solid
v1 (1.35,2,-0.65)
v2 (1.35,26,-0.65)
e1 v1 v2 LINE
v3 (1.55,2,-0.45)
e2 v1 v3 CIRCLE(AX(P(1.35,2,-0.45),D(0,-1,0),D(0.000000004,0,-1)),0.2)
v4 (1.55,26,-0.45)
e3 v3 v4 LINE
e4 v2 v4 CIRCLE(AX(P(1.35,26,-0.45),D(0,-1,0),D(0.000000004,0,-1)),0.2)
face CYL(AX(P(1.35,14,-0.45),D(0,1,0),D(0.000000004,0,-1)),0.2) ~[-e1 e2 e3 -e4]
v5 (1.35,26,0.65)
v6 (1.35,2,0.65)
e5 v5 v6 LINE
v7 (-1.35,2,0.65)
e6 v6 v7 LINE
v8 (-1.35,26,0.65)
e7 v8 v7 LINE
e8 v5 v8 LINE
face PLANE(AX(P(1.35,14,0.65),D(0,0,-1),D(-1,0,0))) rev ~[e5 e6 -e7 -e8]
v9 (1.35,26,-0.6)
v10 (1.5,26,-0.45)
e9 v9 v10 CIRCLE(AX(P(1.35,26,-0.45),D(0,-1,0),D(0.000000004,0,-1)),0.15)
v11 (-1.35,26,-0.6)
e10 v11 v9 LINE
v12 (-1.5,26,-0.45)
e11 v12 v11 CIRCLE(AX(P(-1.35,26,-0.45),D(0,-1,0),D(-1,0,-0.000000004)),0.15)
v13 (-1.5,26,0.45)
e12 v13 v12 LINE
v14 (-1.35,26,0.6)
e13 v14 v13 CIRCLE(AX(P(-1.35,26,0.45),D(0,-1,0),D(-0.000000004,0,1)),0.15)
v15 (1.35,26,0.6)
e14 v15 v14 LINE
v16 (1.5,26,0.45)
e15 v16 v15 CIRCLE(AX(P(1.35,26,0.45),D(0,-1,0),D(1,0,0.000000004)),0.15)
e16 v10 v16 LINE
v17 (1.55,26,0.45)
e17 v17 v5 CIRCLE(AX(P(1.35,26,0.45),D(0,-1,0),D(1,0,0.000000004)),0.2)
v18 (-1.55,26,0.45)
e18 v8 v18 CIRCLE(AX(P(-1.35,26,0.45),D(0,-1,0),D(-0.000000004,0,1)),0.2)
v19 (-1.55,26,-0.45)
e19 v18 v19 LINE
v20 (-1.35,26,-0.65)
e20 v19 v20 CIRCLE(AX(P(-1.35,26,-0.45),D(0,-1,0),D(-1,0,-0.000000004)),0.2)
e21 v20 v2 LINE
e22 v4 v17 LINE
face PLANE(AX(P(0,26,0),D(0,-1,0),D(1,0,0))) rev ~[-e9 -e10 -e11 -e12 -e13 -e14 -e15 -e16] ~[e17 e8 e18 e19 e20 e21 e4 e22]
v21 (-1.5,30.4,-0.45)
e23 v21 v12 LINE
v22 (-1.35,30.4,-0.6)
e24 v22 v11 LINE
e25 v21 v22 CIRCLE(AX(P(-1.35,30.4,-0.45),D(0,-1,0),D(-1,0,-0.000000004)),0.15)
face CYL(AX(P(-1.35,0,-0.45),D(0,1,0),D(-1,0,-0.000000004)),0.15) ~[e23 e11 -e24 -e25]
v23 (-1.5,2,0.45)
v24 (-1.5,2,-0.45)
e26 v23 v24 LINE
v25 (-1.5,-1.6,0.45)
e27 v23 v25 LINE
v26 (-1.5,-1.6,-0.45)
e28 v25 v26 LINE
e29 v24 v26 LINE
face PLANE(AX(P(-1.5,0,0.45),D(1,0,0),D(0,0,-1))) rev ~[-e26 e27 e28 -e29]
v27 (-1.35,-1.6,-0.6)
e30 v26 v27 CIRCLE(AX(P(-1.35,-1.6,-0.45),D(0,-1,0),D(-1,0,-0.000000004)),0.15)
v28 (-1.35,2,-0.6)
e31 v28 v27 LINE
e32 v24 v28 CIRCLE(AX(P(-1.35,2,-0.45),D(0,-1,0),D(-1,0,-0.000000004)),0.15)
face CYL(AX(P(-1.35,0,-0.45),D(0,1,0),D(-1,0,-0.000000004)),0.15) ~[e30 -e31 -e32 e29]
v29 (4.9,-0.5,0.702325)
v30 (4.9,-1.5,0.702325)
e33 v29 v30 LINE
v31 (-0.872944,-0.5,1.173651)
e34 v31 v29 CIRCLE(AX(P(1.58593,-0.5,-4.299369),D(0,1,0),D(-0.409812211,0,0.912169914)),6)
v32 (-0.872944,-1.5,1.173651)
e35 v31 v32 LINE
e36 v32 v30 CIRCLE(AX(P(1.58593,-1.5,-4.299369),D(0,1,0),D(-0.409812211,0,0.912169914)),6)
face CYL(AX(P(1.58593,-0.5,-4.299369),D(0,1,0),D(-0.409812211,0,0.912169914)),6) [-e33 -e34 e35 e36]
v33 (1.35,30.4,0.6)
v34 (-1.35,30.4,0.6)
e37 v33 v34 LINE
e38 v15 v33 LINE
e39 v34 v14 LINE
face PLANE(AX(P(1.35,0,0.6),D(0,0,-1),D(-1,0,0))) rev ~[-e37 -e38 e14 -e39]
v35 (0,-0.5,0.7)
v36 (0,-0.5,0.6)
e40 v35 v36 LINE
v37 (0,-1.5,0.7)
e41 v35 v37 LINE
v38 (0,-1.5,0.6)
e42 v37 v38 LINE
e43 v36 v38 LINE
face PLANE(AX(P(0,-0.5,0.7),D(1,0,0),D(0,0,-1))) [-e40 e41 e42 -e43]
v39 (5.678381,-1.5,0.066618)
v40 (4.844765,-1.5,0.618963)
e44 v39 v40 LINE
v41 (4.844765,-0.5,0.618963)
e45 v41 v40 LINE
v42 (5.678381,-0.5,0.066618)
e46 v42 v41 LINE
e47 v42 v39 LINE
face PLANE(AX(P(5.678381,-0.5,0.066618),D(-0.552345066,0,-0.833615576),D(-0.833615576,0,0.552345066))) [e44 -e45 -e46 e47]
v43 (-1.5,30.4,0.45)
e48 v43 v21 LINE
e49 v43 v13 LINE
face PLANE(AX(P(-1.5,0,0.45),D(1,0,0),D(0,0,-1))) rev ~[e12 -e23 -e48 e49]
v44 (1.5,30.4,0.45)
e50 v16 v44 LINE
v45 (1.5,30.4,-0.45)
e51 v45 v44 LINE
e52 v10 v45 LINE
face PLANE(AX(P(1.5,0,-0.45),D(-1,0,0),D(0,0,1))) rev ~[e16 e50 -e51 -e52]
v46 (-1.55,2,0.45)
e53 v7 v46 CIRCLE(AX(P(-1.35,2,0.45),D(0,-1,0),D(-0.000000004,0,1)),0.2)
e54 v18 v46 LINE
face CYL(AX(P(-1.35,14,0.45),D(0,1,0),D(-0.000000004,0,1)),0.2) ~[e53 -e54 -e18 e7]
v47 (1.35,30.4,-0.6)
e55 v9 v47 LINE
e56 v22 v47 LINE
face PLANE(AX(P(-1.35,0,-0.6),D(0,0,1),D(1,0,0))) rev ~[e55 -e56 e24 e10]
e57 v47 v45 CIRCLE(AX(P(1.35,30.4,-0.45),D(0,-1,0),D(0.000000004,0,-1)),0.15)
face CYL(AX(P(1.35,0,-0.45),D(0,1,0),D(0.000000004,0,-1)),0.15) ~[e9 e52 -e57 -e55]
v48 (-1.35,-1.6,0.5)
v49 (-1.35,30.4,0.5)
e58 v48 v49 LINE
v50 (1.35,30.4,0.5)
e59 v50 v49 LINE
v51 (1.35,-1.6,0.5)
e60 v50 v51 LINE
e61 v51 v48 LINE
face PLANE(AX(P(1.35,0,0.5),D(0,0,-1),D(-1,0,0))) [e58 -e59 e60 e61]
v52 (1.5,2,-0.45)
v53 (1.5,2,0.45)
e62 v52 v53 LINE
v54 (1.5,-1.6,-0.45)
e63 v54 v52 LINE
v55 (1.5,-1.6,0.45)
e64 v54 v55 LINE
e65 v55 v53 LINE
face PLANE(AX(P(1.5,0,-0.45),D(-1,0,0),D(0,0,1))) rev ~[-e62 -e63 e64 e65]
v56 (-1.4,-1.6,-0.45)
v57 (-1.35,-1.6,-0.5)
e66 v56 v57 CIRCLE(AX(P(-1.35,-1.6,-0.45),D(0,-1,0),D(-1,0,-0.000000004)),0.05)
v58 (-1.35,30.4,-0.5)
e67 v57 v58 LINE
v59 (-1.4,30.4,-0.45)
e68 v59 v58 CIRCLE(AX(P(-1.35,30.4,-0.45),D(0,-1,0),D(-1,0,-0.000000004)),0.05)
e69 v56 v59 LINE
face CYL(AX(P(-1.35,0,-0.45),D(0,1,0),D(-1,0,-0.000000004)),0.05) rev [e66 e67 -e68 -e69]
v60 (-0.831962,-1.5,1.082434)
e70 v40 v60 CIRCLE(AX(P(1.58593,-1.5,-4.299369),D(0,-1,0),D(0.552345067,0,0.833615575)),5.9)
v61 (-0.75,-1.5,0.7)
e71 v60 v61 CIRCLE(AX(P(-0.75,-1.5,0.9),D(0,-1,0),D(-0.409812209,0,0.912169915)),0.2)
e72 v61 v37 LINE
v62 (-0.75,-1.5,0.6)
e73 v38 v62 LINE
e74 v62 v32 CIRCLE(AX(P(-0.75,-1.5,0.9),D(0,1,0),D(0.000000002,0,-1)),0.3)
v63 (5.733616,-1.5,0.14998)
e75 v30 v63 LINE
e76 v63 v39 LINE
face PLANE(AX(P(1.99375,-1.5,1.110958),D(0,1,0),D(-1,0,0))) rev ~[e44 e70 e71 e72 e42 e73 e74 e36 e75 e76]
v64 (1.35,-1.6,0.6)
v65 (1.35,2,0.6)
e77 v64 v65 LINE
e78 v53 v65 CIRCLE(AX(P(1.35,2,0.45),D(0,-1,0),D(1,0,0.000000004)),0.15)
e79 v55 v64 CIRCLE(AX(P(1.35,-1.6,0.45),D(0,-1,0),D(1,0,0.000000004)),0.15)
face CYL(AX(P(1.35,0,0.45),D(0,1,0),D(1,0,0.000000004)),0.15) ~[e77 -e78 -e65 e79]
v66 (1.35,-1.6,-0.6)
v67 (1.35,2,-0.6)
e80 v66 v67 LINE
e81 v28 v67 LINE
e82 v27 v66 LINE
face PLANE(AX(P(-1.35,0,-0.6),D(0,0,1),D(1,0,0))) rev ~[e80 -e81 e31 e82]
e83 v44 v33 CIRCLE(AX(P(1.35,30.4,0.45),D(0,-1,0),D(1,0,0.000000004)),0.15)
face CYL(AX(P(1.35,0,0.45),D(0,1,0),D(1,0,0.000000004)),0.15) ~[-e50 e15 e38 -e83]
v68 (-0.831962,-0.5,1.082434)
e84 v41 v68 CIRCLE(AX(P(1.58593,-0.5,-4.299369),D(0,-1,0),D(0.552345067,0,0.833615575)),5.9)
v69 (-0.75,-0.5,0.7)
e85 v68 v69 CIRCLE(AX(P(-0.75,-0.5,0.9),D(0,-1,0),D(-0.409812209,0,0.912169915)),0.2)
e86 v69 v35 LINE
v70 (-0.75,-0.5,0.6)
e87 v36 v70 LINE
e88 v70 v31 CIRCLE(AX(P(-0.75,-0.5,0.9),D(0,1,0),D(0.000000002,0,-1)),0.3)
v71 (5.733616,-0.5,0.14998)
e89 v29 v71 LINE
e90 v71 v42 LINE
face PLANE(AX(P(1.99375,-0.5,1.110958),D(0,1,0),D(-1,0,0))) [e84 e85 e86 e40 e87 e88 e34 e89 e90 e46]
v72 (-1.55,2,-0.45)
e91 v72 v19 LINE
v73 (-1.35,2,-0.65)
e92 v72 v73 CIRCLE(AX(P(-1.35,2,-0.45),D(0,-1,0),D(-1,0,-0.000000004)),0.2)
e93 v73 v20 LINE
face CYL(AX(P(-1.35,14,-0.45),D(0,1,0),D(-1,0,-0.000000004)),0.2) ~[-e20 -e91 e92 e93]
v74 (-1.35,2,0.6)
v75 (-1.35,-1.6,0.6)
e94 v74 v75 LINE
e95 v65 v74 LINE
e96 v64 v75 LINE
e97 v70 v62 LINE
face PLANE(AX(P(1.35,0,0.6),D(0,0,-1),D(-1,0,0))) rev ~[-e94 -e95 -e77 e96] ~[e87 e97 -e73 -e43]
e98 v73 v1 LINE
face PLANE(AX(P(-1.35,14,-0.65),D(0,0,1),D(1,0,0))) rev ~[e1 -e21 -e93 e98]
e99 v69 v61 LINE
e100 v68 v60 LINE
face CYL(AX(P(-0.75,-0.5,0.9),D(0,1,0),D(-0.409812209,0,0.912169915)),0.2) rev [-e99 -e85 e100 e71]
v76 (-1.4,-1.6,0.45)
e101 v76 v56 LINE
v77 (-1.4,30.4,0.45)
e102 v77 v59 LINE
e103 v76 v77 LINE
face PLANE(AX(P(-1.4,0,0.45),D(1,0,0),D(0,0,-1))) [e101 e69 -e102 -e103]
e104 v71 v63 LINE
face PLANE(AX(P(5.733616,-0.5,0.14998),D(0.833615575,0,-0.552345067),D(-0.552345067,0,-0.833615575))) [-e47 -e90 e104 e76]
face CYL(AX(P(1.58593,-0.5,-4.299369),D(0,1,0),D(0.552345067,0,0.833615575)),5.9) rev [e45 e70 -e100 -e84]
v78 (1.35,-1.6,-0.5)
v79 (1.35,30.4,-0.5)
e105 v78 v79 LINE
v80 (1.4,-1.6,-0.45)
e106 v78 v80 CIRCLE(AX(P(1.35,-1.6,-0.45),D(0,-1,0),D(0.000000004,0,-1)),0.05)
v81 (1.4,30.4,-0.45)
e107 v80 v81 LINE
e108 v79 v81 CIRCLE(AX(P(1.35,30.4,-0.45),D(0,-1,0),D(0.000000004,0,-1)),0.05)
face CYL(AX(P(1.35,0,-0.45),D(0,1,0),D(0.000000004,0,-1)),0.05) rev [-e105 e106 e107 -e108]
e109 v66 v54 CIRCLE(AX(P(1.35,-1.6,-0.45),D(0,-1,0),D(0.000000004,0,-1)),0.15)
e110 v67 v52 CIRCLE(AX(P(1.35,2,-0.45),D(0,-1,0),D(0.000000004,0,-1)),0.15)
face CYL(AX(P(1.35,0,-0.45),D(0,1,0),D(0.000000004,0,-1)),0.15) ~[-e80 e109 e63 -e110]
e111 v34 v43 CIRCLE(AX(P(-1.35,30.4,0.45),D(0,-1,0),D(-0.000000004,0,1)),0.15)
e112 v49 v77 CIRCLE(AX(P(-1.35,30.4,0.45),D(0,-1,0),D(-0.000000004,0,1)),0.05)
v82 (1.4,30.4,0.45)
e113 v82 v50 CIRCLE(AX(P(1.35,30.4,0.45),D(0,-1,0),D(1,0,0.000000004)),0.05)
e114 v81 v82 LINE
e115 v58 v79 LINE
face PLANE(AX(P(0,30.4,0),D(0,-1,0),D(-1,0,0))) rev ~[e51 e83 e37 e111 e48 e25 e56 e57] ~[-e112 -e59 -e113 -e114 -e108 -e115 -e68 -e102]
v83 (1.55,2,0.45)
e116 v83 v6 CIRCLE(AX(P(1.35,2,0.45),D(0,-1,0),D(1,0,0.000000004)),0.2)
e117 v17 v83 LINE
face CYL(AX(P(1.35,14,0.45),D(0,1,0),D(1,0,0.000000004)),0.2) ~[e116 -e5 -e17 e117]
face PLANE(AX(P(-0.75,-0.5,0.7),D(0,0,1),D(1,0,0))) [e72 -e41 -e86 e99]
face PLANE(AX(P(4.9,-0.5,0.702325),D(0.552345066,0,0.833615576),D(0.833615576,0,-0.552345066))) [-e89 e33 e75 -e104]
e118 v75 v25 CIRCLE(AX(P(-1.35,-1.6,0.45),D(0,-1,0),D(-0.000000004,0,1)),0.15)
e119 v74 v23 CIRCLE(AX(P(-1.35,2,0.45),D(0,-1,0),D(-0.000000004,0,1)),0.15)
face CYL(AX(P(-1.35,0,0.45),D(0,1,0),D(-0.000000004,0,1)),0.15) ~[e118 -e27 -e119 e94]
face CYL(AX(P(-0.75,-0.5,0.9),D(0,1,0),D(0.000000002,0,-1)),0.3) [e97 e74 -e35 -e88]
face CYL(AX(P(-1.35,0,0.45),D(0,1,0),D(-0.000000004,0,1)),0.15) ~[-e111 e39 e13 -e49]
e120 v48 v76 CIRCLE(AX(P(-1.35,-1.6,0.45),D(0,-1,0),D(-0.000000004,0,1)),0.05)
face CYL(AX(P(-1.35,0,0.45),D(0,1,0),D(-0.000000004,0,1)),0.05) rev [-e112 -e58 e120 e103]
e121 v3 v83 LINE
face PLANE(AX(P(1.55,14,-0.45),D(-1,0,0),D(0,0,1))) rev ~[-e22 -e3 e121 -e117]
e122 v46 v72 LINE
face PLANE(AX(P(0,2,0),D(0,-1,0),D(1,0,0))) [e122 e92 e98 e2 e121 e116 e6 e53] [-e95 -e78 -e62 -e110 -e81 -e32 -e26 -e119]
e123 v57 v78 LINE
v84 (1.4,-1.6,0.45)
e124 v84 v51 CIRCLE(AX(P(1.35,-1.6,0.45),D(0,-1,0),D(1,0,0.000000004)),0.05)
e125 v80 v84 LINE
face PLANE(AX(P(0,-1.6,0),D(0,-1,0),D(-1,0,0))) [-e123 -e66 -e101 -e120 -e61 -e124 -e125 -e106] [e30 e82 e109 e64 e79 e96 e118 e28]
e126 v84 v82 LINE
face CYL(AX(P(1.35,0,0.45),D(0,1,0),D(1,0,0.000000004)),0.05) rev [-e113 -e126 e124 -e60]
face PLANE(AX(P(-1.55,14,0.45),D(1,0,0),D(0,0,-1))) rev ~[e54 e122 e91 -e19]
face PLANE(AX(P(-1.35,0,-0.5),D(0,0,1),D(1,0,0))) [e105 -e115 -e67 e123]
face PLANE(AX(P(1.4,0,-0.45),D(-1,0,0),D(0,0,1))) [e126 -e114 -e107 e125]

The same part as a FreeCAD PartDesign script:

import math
import FreeCAD as App
import Part
import Sketcher

V = App.Vector
Q = App.Units.Quantity

doc = App.newDocument("Part")
body = doc.addObject("PartDesign::Body", "Body")

sketch1 = body.newObject("Sketcher::SketchObject", "Sketch")
sketch1.AttachmentSupport = (doc.getObject("XZ_Plane"), [""])
sketch1.MapMode = "FlatFace"
sketch1.addGeometry([
    Part.LineSegment(V(-1.35, 0.6, 0), V(1.35, 0.6, 0)),
    Part.ArcOfCircle(Part.Circle(V(1.35, 0.45, 0), V(0, 0, 1), 0.15), math.radians(0), math.radians(90)),
    Part.LineSegment(V(1.5, 0.45, 0), V(1.5, -0.45, 0)),
    Part.ArcOfCircle(Part.Circle(V(1.35, -0.45, 0), V(0, 0, 1), 0.15), math.radians(-90), math.radians(0)),
    Part.LineSegment(V(1.35, -0.6, 0), V(-1.35, -0.6, 0)),
    Part.ArcOfCircle(Part.Circle(V(-1.35, -0.45, 0), V(0, 0, 1), 0.15), math.radians(-180), math.radians(-90)),
    Part.LineSegment(V(-1.5, -0.45, 0), V(-1.5, 0.45, 0)),
    Part.ArcOfCircle(Part.Circle(V(-1.35, 0.45, 0), V(0, 0, 1), 0.15), math.radians(90), math.radians(180)),
    Part.LineSegment(V(1.35, 0.5, 0), V(-1.35, 0.5, 0)),
    Part.ArcOfCircle(Part.Circle(V(-1.35, 0.45, 0), V(0, 0, 1), 0.05), math.radians(90), math.radians(180)),
    Part.LineSegment(V(-1.4, 0.45, 0), V(-1.4, -0.45, 0)),
    Part.ArcOfCircle(Part.Circle(V(-1.35, -0.45, 0), V(0, 0, 1), 0.05), math.radians(180), math.radians(270)),
    Part.LineSegment(V(-1.35, -0.5, 0), V(1.35, -0.5, 0)),
    Part.ArcOfCircle(Part.Circle(V(1.35, -0.45, 0), V(0, 0, 1), 0.05), math.radians(-90), math.radians(0)),
    Part.LineSegment(V(1.4, -0.45, 0), V(1.4, 0.45, 0)),
    Part.ArcOfCircle(Part.Circle(V(1.35, 0.45, 0), V(0, 0, 1), 0.05), math.radians(0), math.radians(90)),
], False)
sketch1.addConstraint([
    Sketcher.Constraint("Tangent", 0, 2, 1, 2),
    Sketcher.Constraint("Tangent", 1, 1, 2, 1),
    Sketcher.Constraint("Tangent", 2, 2, 3, 2),
    Sketcher.Constraint("Tangent", 3, 1, 4, 1),
    Sketcher.Constraint("Tangent", 4, 2, 5, 2),
    Sketcher.Constraint("Tangent", 5, 1, 6, 1),
    Sketcher.Constraint("Tangent", 6, 2, 7, 2),
    Sketcher.Constraint("Tangent", 7, 1, 0, 1),
    Sketcher.Constraint("Tangent", 8, 2, 9, 1),
    Sketcher.Constraint("Tangent", 9, 2, 10, 1),
    Sketcher.Constraint("Tangent", 10, 2, 11, 1),
    Sketcher.Constraint("Tangent", 11, 2, 12, 1),
    Sketcher.Constraint("Tangent", 12, 2, 13, 1),
    Sketcher.Constraint("Tangent", 13, 2, 14, 1),
    Sketcher.Constraint("Tangent", 14, 2, 15, 1),
    Sketcher.Constraint("Tangent", 15, 2, 8, 1),
    Sketcher.Constraint("Horizontal", 0),
    Sketcher.Constraint("Vertical", 2),
    Sketcher.Constraint("Horizontal", 4),
    Sketcher.Constraint("Vertical", 6),
    Sketcher.Constraint("Horizontal", 8),
    Sketcher.Constraint("Vertical", 10),
    Sketcher.Constraint("Horizontal", 12),
    Sketcher.Constraint("Vertical", 14),
    Sketcher.Constraint("Coincident", 9, 3, 7, 3),
    Sketcher.Constraint("Coincident", 11, 3, 5, 3),
    Sketcher.Constraint("Coincident", 13, 3, 3, 3),
    Sketcher.Constraint("Equal", 1, 3),
    Sketcher.Constraint("Equal", 3, 5),
    Sketcher.Constraint("Equal", 5, 7),
    Sketcher.Constraint("Equal", 13, 15),
    Sketcher.Constraint("Symmetric", 1, 3, 5, 3, -1, 1),
    Sketcher.Constraint("Radius", 1, Q("0.15 mm")),
    Sketcher.Constraint("Radius", 9, Q("0.05 mm")),
    Sketcher.Constraint("DistanceX", 0, 1, 0, 2, Q("2.7 mm")),
    Sketcher.Constraint("DistanceY", 2, 2, 2, 1, Q("0.9 mm")),
])
pad1 = body.newObject("PartDesign::Pad", "Pad")
pad1.Profile = sketch1
pad1.Type = "TwoLengths"
pad1.Length = 30.4
pad1.Length2 = 1.6
pad1.Reversed = True

sketch2 = body.newObject("Sketcher::SketchObject", "Sketch001")
sketch2.AttachmentSupport = (doc.getObject("XZ_Plane"), [""])
sketch2.MapMode = "FlatFace"
sketch2.AttachmentOffset = App.Placement(V(0, 0, -14), App.Rotation())
sketch2.addGeometry([
    Part.LineSegment(V(1.55, 0.45, 0), V(1.55, -0.45, 0)),
    Part.ArcOfCircle(Part.Circle(V(1.35, -0.45, 0), V(0, 0, 1), 0.2), math.radians(-90), math.radians(0)),
    Part.LineSegment(V(1.35, -0.65, 0), V(-1.35, -0.65, 0)),
    Part.ArcOfCircle(Part.Circle(V(-1.35, -0.45, 0), V(0, 0, 1), 0.2), math.radians(-180), math.radians(-90)),
    Part.LineSegment(V(-1.55, -0.45, 0), V(-1.55, 0.45, 0)),
    Part.ArcOfCircle(Part.Circle(V(-1.35, 0.45, 0), V(0, 0, 1), 0.2), math.radians(90), math.radians(180)),
    Part.LineSegment(V(-1.35, 0.65, 0), V(1.35, 0.65, 0)),
    Part.ArcOfCircle(Part.Circle(V(1.35, 0.45, 0), V(0, 0, 1), 0.2), math.radians(0), math.radians(90)),
    Part.LineSegment(V(1.5, -0.45, 0), V(1.5, 0.45, 0)),
    Part.ArcOfCircle(Part.Circle(V(1.35, 0.45, 0), V(0, 0, 1), 0.15), math.radians(0), math.radians(90)),
    Part.LineSegment(V(1.35, 0.6, 0), V(-1.35, 0.6, 0)),
    Part.ArcOfCircle(Part.Circle(V(-1.35, 0.45, 0), V(0, 0, 1), 0.15), math.radians(90), math.radians(180)),
    Part.LineSegment(V(-1.5, 0.45, 0), V(-1.5, -0.45, 0)),
    Part.ArcOfCircle(Part.Circle(V(-1.35, -0.45, 0), V(0, 0, 1), 0.15), math.radians(-180), math.radians(-90)),
    Part.LineSegment(V(-1.35, -0.6, 0), V(1.35, -0.6, 0)),
    Part.ArcOfCircle(Part.Circle(V(1.35, -0.45, 0), V(0, 0, 1), 0.15), math.radians(-90), math.radians(0)),
], False)
sketch2.addConstraint([
    Sketcher.Constraint("Tangent", 0, 2, 1, 2),
    Sketcher.Constraint("Tangent", 1, 1, 2, 1),
    Sketcher.Constraint("Tangent", 2, 2, 3, 2),
    Sketcher.Constraint("Tangent", 3, 1, 4, 1),
    Sketcher.Constraint("Tangent", 4, 2, 5, 2),
    Sketcher.Constraint("Tangent", 5, 1, 6, 1),
    Sketcher.Constraint("Tangent", 6, 2, 7, 2),
    Sketcher.Constraint("Tangent", 7, 1, 0, 1),
    Sketcher.Constraint("Tangent", 8, 2, 9, 1),
    Sketcher.Constraint("Tangent", 9, 2, 10, 1),
    Sketcher.Constraint("Tangent", 10, 2, 11, 1),
    Sketcher.Constraint("Tangent", 11, 2, 12, 1),
    Sketcher.Constraint("Tangent", 12, 2, 13, 1),
    Sketcher.Constraint("Tangent", 13, 2, 14, 1),
    Sketcher.Constraint("Tangent", 14, 2, 15, 1),
    Sketcher.Constraint("Tangent", 15, 2, 8, 1),
    Sketcher.Constraint("Vertical", 0),
    Sketcher.Constraint("Horizontal", 2),
    Sketcher.Constraint("Vertical", 4),
    Sketcher.Constraint("Horizontal", 6),
    Sketcher.Constraint("Vertical", 8),
    Sketcher.Constraint("Horizontal", 10),
    Sketcher.Constraint("Vertical", 12),
    Sketcher.Constraint("Horizontal", 14),
    Sketcher.Constraint("Coincident", 9, 3, 7, 3),
    Sketcher.Constraint("Coincident", 11, 3, 5, 3),
    Sketcher.Constraint("Coincident", 13, 3, 3, 3),
    Sketcher.Constraint("Equal", 1, 3),
    Sketcher.Constraint("Equal", 3, 5),
    Sketcher.Constraint("Equal", 5, 7),
    Sketcher.Constraint("Equal", 13, 15),
    Sketcher.Constraint("Symmetric", 1, 3, 5, 3, -1, 1),
    Sketcher.Constraint("Radius", 1, Q("0.2 mm")),
    Sketcher.Constraint("Radius", 9, Q("0.15 mm")),
    Sketcher.Constraint("DistanceX", 2, 2, 2, 1, Q("2.7 mm")),
    Sketcher.Constraint("DistanceY", 0, 2, 0, 1, Q("0.9 mm")),
])
pad2 = body.newObject("PartDesign::Pad", "Pad001")
pad2.Profile = sketch2
pad2.Length = 24
pad2.Midplane = True

sketch3 = body.newObject("Sketcher::SketchObject", "Sketch002")
sketch3.AttachmentSupport = (doc.getObject("XZ_Plane"), [""])
sketch3.MapMode = "FlatFace"
sketch3.AttachmentOffset = App.Placement(V(0, 0, 0.5), App.Rotation())
sketch3.addGeometry([
    Part.LineSegment(V(-0.75, 0.6, 0), V(0, 0.6, 0)),
    Part.LineSegment(V(0, 0.6, 0), V(0, 0.7, 0)),
    Part.LineSegment(V(0, 0.7, 0), V(-0.75, 0.7, 0)),
    Part.ArcOfCircle(Part.Circle(V(-0.75, 0.9, 0), V(0, 0, 1), 0.2), math.radians(114), math.radians(270)),
    Part.ArcOfCircle(Part.Circle(V(1.59, -4.3, 0), V(0, 0, 1), 5.9), math.radians(56), math.radians(114)),
    Part.LineSegment(V(4.84, 0.62, 0), V(5.68, 0.07, 0)),
    Part.LineSegment(V(5.68, 0.07, 0), V(5.73, 0.15, 0)),
    Part.LineSegment(V(5.73, 0.15, 0), V(4.9, 0.7, 0)),
    Part.ArcOfCircle(Part.Circle(V(1.59, -4.3, 0), V(0, 0, 1), 6), math.radians(56), math.radians(114)),
    Part.ArcOfCircle(Part.Circle(V(-0.75, 0.9, 0), V(0, 0, 1), 0.3), math.radians(114), math.radians(270)),
], False)
sketch3.addConstraint([
    Sketcher.Constraint("Coincident", 0, 2, 1, 1),
    Sketcher.Constraint("Coincident", 1, 2, 2, 1),
    Sketcher.Constraint("Tangent", 2, 2, 3, 2),
    Sketcher.Constraint("Tangent", 3, 1, 4, 2),
    Sketcher.Constraint("Tangent", 4, 1, 5, 1),
    Sketcher.Constraint("Coincident", 5, 2, 6, 1),
    Sketcher.Constraint("Coincident", 6, 2, 7, 1),
    Sketcher.Constraint("Tangent", 7, 2, 8, 1),
    Sketcher.Constraint("Tangent", 8, 2, 9, 1),
    Sketcher.Constraint("Tangent", 9, 2, 0, 1),
    Sketcher.Constraint("Horizontal", 0),
    Sketcher.Constraint("Vertical", 1),
    Sketcher.Constraint("Horizontal", 2),
    Sketcher.Constraint("Coincident", 8, 3, 4, 3),
    Sketcher.Constraint("Coincident", 9, 3, 3, 3),
    Sketcher.Constraint("PointOnObject", 0, 2, -2),
    Sketcher.Constraint("Perpendicular", 5, 6),
    Sketcher.Constraint("Perpendicular", 6, 7),
    Sketcher.Constraint("Radius", 8, Q("6 mm")),
    Sketcher.Constraint("Radius", 3, Q("0.2 mm")),
    Sketcher.Constraint("Radius", 4, Q("5.9 mm")),
    Sketcher.Constraint("Distance", 5, Q("1 mm")),
    Sketcher.Constraint("DistanceX", 0, 1, 0, 2, Q("0.75 mm")),
    Sketcher.Constraint("DistanceY", -1, 1, 3, 3, Q("0.9 mm")),
    Sketcher.Constraint("DistanceX", -1, 1, 7, 2, Q("4.9 mm")),
    Sketcher.Constraint("DistanceX", -1, 1, 4, 3, Q("1.58593 mm")),
])
pad3 = body.newObject("PartDesign::Pad", "Pad002")
pad3.Profile = sketch3
pad3.Length = 1

doc.recompute()
